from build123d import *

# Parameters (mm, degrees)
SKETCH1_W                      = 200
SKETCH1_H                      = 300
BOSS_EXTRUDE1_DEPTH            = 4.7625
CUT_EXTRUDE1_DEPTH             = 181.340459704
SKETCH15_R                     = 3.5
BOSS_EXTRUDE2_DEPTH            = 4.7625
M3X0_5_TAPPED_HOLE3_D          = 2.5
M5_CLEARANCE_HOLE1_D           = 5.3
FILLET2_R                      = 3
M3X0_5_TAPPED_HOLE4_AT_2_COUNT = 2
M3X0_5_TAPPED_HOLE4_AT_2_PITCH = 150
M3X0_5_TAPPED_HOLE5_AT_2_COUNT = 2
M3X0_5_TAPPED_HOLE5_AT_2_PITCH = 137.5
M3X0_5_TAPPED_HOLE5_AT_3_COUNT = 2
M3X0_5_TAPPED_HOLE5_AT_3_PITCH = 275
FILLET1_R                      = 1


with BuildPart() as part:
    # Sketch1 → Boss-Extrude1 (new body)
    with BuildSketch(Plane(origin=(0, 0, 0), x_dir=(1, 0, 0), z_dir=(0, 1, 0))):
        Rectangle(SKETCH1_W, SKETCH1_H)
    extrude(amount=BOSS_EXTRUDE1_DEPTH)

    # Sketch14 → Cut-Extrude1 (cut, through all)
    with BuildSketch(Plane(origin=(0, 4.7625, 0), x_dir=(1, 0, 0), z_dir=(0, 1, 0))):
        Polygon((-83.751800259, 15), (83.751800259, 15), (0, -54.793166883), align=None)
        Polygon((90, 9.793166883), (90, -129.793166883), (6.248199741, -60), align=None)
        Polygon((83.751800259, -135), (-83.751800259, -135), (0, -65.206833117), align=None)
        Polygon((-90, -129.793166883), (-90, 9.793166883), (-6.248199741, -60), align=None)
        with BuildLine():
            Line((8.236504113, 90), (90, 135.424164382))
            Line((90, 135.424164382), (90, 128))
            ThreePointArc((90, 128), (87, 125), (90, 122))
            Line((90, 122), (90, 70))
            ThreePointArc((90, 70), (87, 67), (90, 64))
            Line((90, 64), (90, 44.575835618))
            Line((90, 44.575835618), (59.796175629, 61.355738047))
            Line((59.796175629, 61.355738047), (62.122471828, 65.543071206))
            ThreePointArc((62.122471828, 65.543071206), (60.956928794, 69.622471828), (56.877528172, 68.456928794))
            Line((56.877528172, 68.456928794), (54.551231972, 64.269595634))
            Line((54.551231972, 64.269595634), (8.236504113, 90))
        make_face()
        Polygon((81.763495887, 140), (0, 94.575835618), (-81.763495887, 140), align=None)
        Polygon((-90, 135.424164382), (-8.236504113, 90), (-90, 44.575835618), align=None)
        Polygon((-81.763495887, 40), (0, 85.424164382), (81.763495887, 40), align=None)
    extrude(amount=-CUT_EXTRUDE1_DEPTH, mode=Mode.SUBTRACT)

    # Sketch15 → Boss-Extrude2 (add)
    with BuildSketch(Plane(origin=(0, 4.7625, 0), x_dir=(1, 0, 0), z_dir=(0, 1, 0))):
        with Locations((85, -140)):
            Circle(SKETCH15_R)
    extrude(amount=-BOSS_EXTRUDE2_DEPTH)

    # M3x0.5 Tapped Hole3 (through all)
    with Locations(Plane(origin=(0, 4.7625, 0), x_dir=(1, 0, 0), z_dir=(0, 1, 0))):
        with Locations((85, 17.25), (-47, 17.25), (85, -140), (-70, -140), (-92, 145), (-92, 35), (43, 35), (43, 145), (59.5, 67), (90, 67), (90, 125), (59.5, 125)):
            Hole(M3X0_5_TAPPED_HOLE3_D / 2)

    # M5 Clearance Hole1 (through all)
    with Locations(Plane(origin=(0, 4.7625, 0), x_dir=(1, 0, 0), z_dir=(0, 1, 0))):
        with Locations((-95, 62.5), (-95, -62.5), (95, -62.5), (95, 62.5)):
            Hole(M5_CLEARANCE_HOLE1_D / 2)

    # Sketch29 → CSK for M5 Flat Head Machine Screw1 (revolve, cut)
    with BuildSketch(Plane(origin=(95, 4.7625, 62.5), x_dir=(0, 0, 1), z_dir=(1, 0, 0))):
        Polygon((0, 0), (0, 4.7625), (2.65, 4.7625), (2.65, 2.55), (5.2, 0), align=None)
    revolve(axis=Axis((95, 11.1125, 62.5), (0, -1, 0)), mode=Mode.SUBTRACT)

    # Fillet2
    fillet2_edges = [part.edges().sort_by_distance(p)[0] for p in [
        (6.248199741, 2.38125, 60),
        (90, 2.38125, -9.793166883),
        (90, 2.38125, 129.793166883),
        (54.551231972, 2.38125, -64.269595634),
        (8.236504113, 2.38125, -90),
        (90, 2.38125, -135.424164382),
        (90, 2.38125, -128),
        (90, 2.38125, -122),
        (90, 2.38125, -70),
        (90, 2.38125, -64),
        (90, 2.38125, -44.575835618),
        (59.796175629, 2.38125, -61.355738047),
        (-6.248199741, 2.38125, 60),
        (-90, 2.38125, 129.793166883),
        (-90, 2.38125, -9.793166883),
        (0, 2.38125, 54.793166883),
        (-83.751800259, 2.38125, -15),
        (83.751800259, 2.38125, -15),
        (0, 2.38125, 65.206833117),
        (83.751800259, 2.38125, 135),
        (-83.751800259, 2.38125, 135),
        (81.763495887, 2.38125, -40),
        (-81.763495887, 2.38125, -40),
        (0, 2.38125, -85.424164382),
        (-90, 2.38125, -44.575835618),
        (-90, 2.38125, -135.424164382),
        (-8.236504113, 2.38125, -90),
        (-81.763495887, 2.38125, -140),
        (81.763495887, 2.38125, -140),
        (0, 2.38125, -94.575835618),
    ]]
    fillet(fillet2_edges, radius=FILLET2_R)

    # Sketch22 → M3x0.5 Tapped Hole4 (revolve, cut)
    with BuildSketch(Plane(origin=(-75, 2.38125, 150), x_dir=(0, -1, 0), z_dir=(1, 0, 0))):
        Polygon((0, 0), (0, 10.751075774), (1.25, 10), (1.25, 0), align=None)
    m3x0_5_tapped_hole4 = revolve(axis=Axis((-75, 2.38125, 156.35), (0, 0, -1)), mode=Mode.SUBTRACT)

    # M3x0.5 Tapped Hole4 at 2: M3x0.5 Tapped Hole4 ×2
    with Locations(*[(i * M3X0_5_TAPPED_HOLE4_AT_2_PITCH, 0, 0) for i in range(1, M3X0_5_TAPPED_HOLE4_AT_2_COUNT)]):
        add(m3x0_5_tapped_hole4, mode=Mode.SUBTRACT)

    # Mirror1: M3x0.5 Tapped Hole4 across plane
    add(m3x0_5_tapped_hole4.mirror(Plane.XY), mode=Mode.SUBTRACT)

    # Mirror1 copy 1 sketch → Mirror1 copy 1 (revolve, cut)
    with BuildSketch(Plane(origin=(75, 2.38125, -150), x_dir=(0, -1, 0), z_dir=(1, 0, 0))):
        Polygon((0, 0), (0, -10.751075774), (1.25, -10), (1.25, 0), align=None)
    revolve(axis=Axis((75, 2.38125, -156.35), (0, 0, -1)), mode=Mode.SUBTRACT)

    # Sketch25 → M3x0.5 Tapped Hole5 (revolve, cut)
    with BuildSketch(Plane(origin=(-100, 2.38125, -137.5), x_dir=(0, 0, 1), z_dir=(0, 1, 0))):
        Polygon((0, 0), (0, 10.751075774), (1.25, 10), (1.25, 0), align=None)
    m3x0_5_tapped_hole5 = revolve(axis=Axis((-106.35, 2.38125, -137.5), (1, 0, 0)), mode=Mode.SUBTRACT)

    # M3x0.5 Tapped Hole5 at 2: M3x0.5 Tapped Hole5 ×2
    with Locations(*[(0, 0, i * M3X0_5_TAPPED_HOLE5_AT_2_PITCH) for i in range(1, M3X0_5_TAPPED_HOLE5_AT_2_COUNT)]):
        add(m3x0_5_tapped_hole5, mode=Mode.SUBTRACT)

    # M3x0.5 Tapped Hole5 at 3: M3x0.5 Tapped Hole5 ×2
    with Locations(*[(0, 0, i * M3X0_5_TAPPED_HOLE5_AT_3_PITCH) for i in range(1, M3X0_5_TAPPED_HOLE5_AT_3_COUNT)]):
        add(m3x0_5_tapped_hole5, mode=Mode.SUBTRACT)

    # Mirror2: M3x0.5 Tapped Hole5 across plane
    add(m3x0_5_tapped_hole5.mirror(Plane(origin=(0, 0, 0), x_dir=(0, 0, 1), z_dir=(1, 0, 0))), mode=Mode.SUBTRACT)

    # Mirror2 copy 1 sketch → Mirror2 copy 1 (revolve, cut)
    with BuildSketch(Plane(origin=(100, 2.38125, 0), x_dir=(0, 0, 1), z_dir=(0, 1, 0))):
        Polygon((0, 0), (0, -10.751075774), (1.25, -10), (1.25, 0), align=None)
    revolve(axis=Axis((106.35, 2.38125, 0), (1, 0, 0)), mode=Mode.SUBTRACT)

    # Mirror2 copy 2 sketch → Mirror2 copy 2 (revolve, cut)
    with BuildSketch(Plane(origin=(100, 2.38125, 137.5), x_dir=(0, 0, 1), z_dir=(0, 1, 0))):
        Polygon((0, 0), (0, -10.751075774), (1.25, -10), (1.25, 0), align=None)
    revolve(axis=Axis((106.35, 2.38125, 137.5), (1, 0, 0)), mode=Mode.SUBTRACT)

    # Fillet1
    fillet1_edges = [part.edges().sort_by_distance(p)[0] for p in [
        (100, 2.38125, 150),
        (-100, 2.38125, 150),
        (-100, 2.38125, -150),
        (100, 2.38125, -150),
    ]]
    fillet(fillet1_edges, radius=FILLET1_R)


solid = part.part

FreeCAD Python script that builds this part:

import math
import FreeCAD as App
import Part
import Sketcher
from FreeCAD import Vector
Q = App.Units.Quantity


def edges_at(feature, points):
    """Names of the edges that pass closest to the given points."""
    edges = feature.Shape.Edges
    near = lambda p: min(range(len(edges)), key=lambda i: edges[i].distToShape(Part.Vertex(*p))[0])
    return sorted({f"Edge{near(p) + 1}" for p in points})


def add_polygon(sketch, points):
    """Adds a closed chain of lines whose ends are joined by coincident constraints."""
    first, n = sketch.GeometryCount, len(points)
    for a, b in zip(points, points[1:] + points[:1]):
        sketch.addGeometry(Part.LineSegment(App.Vector(*a, 0), App.Vector(*b, 0)), False)
    for i in range(n):
        sketch.addConstraint(Sketcher.Constraint("Coincident", first + i, 2, first + (i + 1) % n, 1))

doc = App.newDocument("Part")
body = doc.addObject("PartDesign::Body", "Body")

sketch1 = doc.addObject("Sketcher::SketchObject", "Sketch")
body.addObject(sketch1)
sketch1.AttachmentSupport = (doc.XZ_Plane, [""])
sketch1.MapMode = "FlatFace"
add_polygon(sketch1, [(-100, -150), (-100, 150), (100, 150), (100, -150)])
sketch1.addConstraint([
    Sketcher.Constraint("Vertical", 0),
    Sketcher.Constraint("Horizontal", 1),
    Sketcher.Constraint("Vertical", 2),
    Sketcher.Constraint("Horizontal", 3),
    Sketcher.Constraint("Symmetric", 0, 2, 2, 2, -1, 1),
    Sketcher.Constraint("DistanceX", 1, 1, 1, 2, Q("200 mm")),
    Sketcher.Constraint("DistanceY", 0, 1, 0, 2, Q("300 mm")),
])
pad1 = doc.addObject("PartDesign::Pad", "Pad")
body.addObject(pad1)
pad1.Profile = sketch1
pad1.Length = 4.7625
pad1.Reversed = True

sketch2 = doc.addObject("Sketcher::SketchObject", "Sketch001")
body.addObject(sketch2)
sketch2.AttachmentSupport = (doc.XZ_Plane, [""])
sketch2.MapMode = "FlatFace"
sketch2.AttachmentOffset = App.Placement(Vector(0, 0, -4.7625), App.Rotation())
add_polygon(sketch2, [(83.8, -15), (-83.8, -15), (0, 54.8)])
add_polygon(sketch2, [(90, 129.8), (90, -9.8), (6.2, 60)])
add_polygon(sketch2, [(-83.8, 135), (83.8, 135), (0, 65.2)])
add_polygon(sketch2, [(-90, -9.8), (-90, 129.8), (-6.2, 60)])
sketch2.addGeometry(Part.LineSegment(Vector(90, -135.4, 0), Vector(8.2, -90, 0)), False)
sketch2.addGeometry(Part.LineSegment(Vector(8.2, -90, 0), Vector(54.6, -64.3, 0)), False)
sketch2.addGeometry(Part.LineSegment(Vector(54.6, -64.3, 0), Vector(56.9, -68.5, 0)), False)
sketch2.addGeometry(Part.ArcOfCircle(Part.Circle(Vector(59.5, -67, 0), Vector(0, 0, 1), 3), math.radians(-151), math.radians(29)), False)
sketch2.addGeometry(Part.LineSegment(Vector(62.1, -65.5, 0), Vector(59.8, -61.4, 0)), False)
sketch2.addGeometry(Part.LineSegment(Vector(59.8, -61.4, 0), Vector(90, -44.6, 0)), False)
sketch2.addGeometry(Part.LineSegment(Vector(90, -44.6, 0), Vector(90, -64, 0)), False)
sketch2.addGeometry(Part.ArcOfCircle(Part.Circle(Vector(90, -67, 0), Vector(0, 0, 1), 3), math.radians(90), math.radians(270)), False)
sketch2.addGeometry(Part.LineSegment(Vector(90, -70, 0), Vector(90, -122, 0)), False)
sketch2.addGeometry(Part.ArcOfCircle(Part.Circle(Vector(90, -125, 0), Vector(0, 0, 1), 3), math.radians(90), math.radians(270)), False)
sketch2.addGeometry(Part.LineSegment(Vector(90, -128, 0), Vector(90, -135.4, 0)), False)
add_polygon(sketch2, [(0, -94.6), (81.8, -140), (-81.8, -140)])
add_polygon(sketch2, [(-8.2, -90), (-90, -135.4), (-90, -44.6)])
add_polygon(sketch2, [(0, -85.4), (-81.8, -40), (81.8, -40)])
sketch2.addConstraint([
    Sketcher.Constraint("Coincident", 12, 2, 13, 1),
    Sketcher.Constraint("Coincident", 13, 2, 14, 1),
    Sketcher.Constraint("Tangent", 14, 2, 15, 1),
    Sketcher.Constraint("Tangent", 15, 2, 16, 1),
    Sketcher.Constraint("Coincident", 16, 2, 17, 1),
    Sketcher.Constraint("Coincident", 17, 2, 18, 1),
    Sketcher.Constraint("Coincident", 18, 2, 19, 1),
    Sketcher.Constraint("Coincident", 19, 2, 20, 1),
    Sketcher.Constraint("Coincident", 20, 2, 21, 1),
    Sketcher.Constraint("Coincident", 21, 2, 22, 1),
    Sketcher.Constraint("Coincident", 22, 2, 12, 1),
    Sketcher.Constraint("Horizontal", 0),
    Sketcher.Constraint("Vertical", 3),
    Sketcher.Constraint("Horizontal", 6),
    Sketcher.Constraint("Vertical", 9),
    Sketcher.Constraint("Vertical", 18),
    Sketcher.Constraint("Vertical", 20),
    Sketcher.Constraint("Vertical", 22),
    Sketcher.Constraint("Horizontal", 24),
    Sketcher.Constraint("Vertical", 27),
    Sketcher.Constraint("Horizontal", 30),
    Sketcher.Constraint("Equal", 15, 19),
    Sketcher.Constraint("Equal", 19, 21),
    Sketcher.Constraint("Symmetric", 5, 2, 9, 2, -2),
    Sketcher.Constraint("Symmetric", 4, 2, 10, 2, -2),
    Sketcher.Constraint("Symmetric", 22, 2, 26, 2, -2),
    Sketcher.Constraint("Symmetric", 17, 2, 27, 2, -2),
    Sketcher.Constraint("Symmetric", 12, 2, 28, 2, -2),
    Sketcher.Constraint("PointOnObject", 1, 2, -2),
    Sketcher.Constraint("PointOnObject", 7, 2, -2),
    Sketcher.Constraint("PointOnObject", 25, 2, -2),
    Sketcher.Constraint("PointOnObject", 31, 2, -2),
    Sketcher.Constraint("Parallel", 2, 4),
    Sketcher.Constraint("Parallel", 1, 5),
    Sketcher.Constraint("Parallel", 5, 7),
    Sketcher.Constraint("Parallel", 4, 8),
    Sketcher.Constraint("Parallel", 8, 10),
    Sketcher.Constraint("Parallel", 7, 11),
    Sketcher.Constraint("Perpendicular", 13, 14),
    Sketcher.Constraint("Parallel", 14, 16),
    Sketcher.Constraint("Perpendicular", 16, 17),
    Sketcher.Constraint("Parallel", 12, 23),
    Sketcher.Constraint("Parallel", 17, 25),
    Sketcher.Constraint("Parallel", 25, 26),
    Sketcher.Constraint("Parallel", 23, 28),
    Sketcher.Constraint("Parallel", 28, 29),
    Sketcher.Constraint("Parallel", 26, 31),
    Sketcher.Constraint("Horizontal", 15, 3, 19, 3),
    Sketcher.Constraint("Vertical", 19, 3, 21, 3),
    Sketcher.Constraint("Vertical", 21, 3, 3, 2),
    Sketcher.Constraint("Vertical", 2, 2, 6, 2),
    Sketcher.Constraint("Vertical", 5, 2, 17, 2),
    Sketcher.Constraint("Vertical", 18, 2, 19, 2),
    Sketcher.Constraint("Vertical", 24, 2, 29, 2),
    Sketcher.Constraint("Equal", 2, 4),
    Sketcher.Constraint("Equal", 12, 23),
    Sketcher.Constraint("Radius", 15, Q("3 mm")),
    Sketcher.Constraint("DistanceY", 20, 2, 20, 1, Q("52 mm")),
    Sketcher.Constraint("DistanceY", 15, 3, -1, 1, Q("67 mm")),
    Sketcher.Constraint("DistanceX", -1, 1, 19, 3, Q("90 mm")),
    Sketcher.Constraint("DistanceY", 0, 2, -1, 1, Q("15 mm")),
    Sketcher.Constraint("DistanceY", -1, 1, 4, 2, Q("60 mm")),
    Sketcher.Constraint("DistanceY", -1, 1, 6, 2, Q("135 mm")),
    Sketcher.Constraint("DistanceY", 12, 2, -1, 1, Q("90 mm")),
    Sketcher.Constraint("DistanceY", 23, 2, -1, 1, Q("140 mm")),
    Sketcher.Constraint("DistanceY", 29, 2, -1, 1, Q("40 mm")),
    Sketcher.Constraint("DistanceX", -1, 1, 15, 3, Q("59.5 mm")),
    Sketcher.Constraint("DistanceX", 0, 2, 0, 1, Q("167.503601 mm")),
    Sketcher.Constraint("DistanceX", 24, 2, 24, 1, Q("163.526992 mm")),
    Sketcher.Constraint("DistanceY", 27, 1, 27, 2, Q("90.848329 mm")),
    Sketcher.Constraint("Distance", 1, Q("109.020412 mm")),
])
pocket1 = doc.addObject("PartDesign::Pocket", "Pocket")
body.addObject(pocket1)
pocket1.Profile = sketch2
pocket1.Type = "ThroughAll"
pocket1.Reversed = True

sketch3 = doc.addObject("Sketcher::SketchObject", "Sketch002")
body.addObject(sketch3)
sketch3.AttachmentSupport = (doc.XZ_Plane, [""])
sketch3.MapMode = "FlatFace"
sketch3.AttachmentOffset = App.Placement(Vector(0, 0, -4.7625), App.Rotation())
sketch3.addGeometry(Part.Circle(Vector(85, 140, 0), Vector(0, 0, 1), 3.5), False)
sketch3.addConstraint([
    Sketcher.Constraint("Diameter", 0, Q("7 mm")),
    Sketcher.Constraint("DistanceX", -1, 1, 0, 3, Q("85 mm")),
    Sketcher.Constraint("DistanceY", -1, 1, 0, 3, Q("140 mm")),
])
pad2 = doc.addObject("PartDesign::Pad", "Pad001")
body.addObject(pad2)
pad2.Profile = sketch3
pad2.Length = 4.7625

sketch4 = doc.addObject("Sketcher::SketchObject", "Sketch003")
body.addObject(sketch4)
sketch4.AttachmentSupport = (doc.XZ_Plane, [""])
sketch4.MapMode = "FlatFace"
sketch4.AttachmentOffset = App.Placement(Vector(0, 0, -4.7625), App.Rotation())
sketch4.addGeometry([
    Part.Circle(Vector(85, -17.2, 0), Vector(0, 0, 1), 1.2),
    Part.Circle(Vector(-47, -17.2, 0), Vector(0, 0, 1), 1.2),
    Part.Circle(Vector(85, 140, 0), Vector(0, 0, 1), 1.2),
    Part.Circle(Vector(-70, 140, 0), Vector(0, 0, 1), 1.2),
    Part.Circle(Vector(-92, -145, 0), Vector(0, 0, 1), 1.2),
    Part.Circle(Vector(-92, -35, 0), Vector(0, 0, 1), 1.2),
    Part.Circle(Vector(43, -35, 0), Vector(0, 0, 1), 1.2),
    Part.Circle(Vector(43, -145, 0), Vector(0, 0, 1), 1.2),
    Part.Circle(Vector(59.5, -67, 0), Vector(0, 0, 1), 1.2),
    Part.Circle(Vector(90, -67, 0), Vector(0, 0, 1), 1.2),
    Part.Circle(Vector(90, -125, 0), Vector(0, 0, 1), 1.2),
    Part.Circle(Vector(59.5, -125, 0), Vector(0, 0, 1), 1.2),
], False)
sketch4.addConstraint([
    Sketcher.Constraint("Equal", 0, 1),
    Sketcher.Constraint("Equal", 1, 2),
    Sketcher.Constraint("Equal", 2, 3),
    Sketcher.Constraint("Equal", 3, 4),
    Sketcher.Constraint("Equal", 4, 5),
    Sketcher.Constraint("Equal", 5, 6),
    Sketcher.Constraint("Equal", 6, 7),
    Sketcher.Constraint("Equal", 7, 8),
    Sketcher.Constraint("Equal", 8, 9),
    Sketcher.Constraint("Equal", 9, 10),
    Sketcher.Constraint("Equal", 10, 11),
    Sketcher.Constraint("Horizontal", 0, 3, 1, 3),
    Sketcher.Constraint("Horizontal", 2, 3, 3, 3),
    Sketcher.Constraint("Horizontal", 5, 3, 6, 3),
    Sketcher.Constraint("Horizontal", 4, 3, 7, 3),
    Sketcher.Constraint("Horizontal", 8, 3, 9, 3),
    Sketcher.Constraint("Horizontal", 10, 3, 11, 3),
    Sketcher.Constraint("Vertical", 0, 3, 2, 3),
    Sketcher.Constraint("Vertical", 4, 3, 5, 3),
    Sketcher.Constraint("Vertical", 6, 3, 7, 3),
    Sketcher.Constraint("Vertical", 9, 3, 10, 3),
    Sketcher.Constraint("Vertical", 8, 3, 11, 3),
    Sketcher.Constraint("Diameter", 0, Q("2.5 mm")),
    Sketcher.Constraint("DistanceX", -1, 1, 0, 3, Q("85 mm")),
    Sketcher.Constraint("DistanceX", 1, 3, -1, 1, Q("47 mm")),
    Sketcher.Constraint("DistanceY", -1, 1, 2, 3, Q("140 mm")),
    Sketcher.Constraint("DistanceX", 3, 3, -1, 1, Q("70 mm")),
    Sketcher.Constraint("DistanceX", 4, 3, -1, 1, Q("92 mm")),
    Sketcher.Constraint("DistanceY", 4, 3, -1, 1, Q("145 mm")),
    Sketcher.Constraint("DistanceY", 5, 3, -1, 1, Q("35 mm")),
    Sketcher.Constraint("DistanceX", -1, 1, 6, 3, Q("43 mm")),
    Sketcher.Constraint("DistanceY", 8, 3, -1, 1, Q("67 mm")),
    Sketcher.Constraint("DistanceX", -1, 1, 9, 3, Q("90 mm")),
    Sketcher.Constraint("DistanceY", 10, 3, -1, 1, Q("125 mm")),
    Sketcher.Constraint("DistanceX", -1, 1, 8, 3, Q("59.5 mm")),
    Sketcher.Constraint("DistanceY", 0, 3, -1, 1, Q("17.25 mm")),
])
doc.recompute()
hole = doc.addObject("PartDesign::Hole", "Hole")
body.addObject(hole)
hole.Profile = sketch4
hole.ThreadType = "None"
hole.Diameter = 2.5
hole.DepthType = "ThroughAll"
hole.Reversed = True

sketch5 = doc.addObject("Sketcher::SketchObject", "Sketch004")
body.addObject(sketch5)
sketch5.AttachmentSupport = (doc.XZ_Plane, [""])
sketch5.MapMode = "FlatFace"
sketch5.AttachmentOffset = App.Placement(Vector(0, 0, -4.7625), App.Rotation())
sketch5.addGeometry([
    Part.Circle(Vector(-95, -62.5, 0), Vector(0, 0, 1), 2.6),
    Part.Circle(Vector(-95, 62.5, 0), Vector(0, 0, 1), 2.6),
    Part.Circle(Vector(95, 62.5, 0), Vector(0, 0, 1), 2.6),
    Part.Circle(Vector(95, -62.5, 0), Vector(0, 0, 1), 2.6),
], False)
sketch5.addConstraint([
    Sketcher.Constraint("Equal", 0, 1),
    Sketcher.Constraint("Equal", 1, 2),
    Sketcher.Constraint("Equal", 2, 3),
    Sketcher.Constraint("Symmetric", 0, 3, 2, 3, -1, 1),
    Sketcher.Constraint("Symmetric", 1, 3, 3, 3, -1, 1),
    Sketcher.Constraint("Symmetric", 1, 3, 2, 3, -2),
    Sketcher.Constraint("Diameter", 0, Q("5.3 mm")),
    Sketcher.Constraint("DistanceX", 0, 3, -1, 1, Q("95 mm")),
    Sketcher.Constraint("DistanceY", 0, 3, 1, 3, Q("125 mm")),
])
doc.recompute()
hole2 = doc.addObject("PartDesign::Hole", "Hole001")
body.addObject(hole2)
hole2.Profile = sketch5
hole2.ThreadType = "None"
hole2.Diameter = 5.3
hole2.DepthType = "ThroughAll"
hole2.Reversed = True

sketch6 = doc.addObject("Sketcher::SketchObject", "Sketch005")
body.addObject(sketch6)
sketch6.AttachmentSupport = (doc.YZ_Plane, [""])
sketch6.MapMode = "FlatFace"
sketch6.AttachmentOffset = App.Placement(Vector(0, 0, 95), App.Rotation())
add_polygon(sketch6, [(0, 62.5), (4.8, 62.5), (4.8, 67.7), (2.2, 65.2), (0, 65.2)])
sketch6.addGeometry(Part.LineSegment(Vector(4.8, 62.5, 0), Vector(0, 62.5, 0)), True)
sketch6.addConstraint([
    Sketcher.Constraint("Horizontal", 0),
    Sketcher.Constraint("Vertical", 1),
    Sketcher.Constraint("Horizontal", 3),
    Sketcher.Constraint("Vertical", 4),
    Sketcher.Constraint("Horizontal", 5),
    Sketcher.Constraint("Coincident", 5, 1, 0, 2),
    Sketcher.Constraint("PointOnObject", 3, 2, -2),
    Sketcher.Constraint("PointOnObject", 5, 2, -2),
    Sketcher.Constraint("Angle", 2, Q("-135 deg")),
    Sketcher.Constraint("DistanceY", 1, 1, 1, 2, Q("5.2 mm")),
    Sketcher.Constraint("DistanceY", 4, 2, 4, 1, Q("2.65 mm")),
    Sketcher.Constraint("DistanceY", -1, 1, 0, 2, Q("62.5 mm")),
    Sketcher.Constraint("DistanceX", 0, 1, 0, 2, Q("4.7625 mm")),
])
groove = doc.addObject("PartDesign::Groove", "Groove")
body.addObject(groove)
groove.Profile = sketch6
groove.ReferenceAxis = (sketch6, ["Axis0"])
groove.Angle = 360
doc.recompute()

fillet = doc.addObject("PartDesign::Fillet", "Fillet")
body.addObject(fillet)
fillet.Base = (groove, edges_at(groove, [
    (6.248, 2.381, 60),
    (90, 2.381, -9.793),
    (90, 2.381, 129.793),
    (54.551, 2.381, -64.27),
    (8.237, 2.381, -90),
    (90, 2.381, -135.424),
    (90, 2.381, -128),
    (90, 2.381, -122),
    (90, 2.381, -70),
    (90, 2.381, -64),
    (90, 2.381, -44.576),
    (59.796, 2.381, -61.356),
    (-6.248, 2.381, 60),
    (-90, 2.381, 129.793),
    (-90, 2.381, -9.793),
    (0, 2.381, 54.793),
    (-83.752, 2.381, -15),
    (83.752, 2.381, -15),
    (0, 2.381, 65.207),
    (83.752, 2.381, 135),
    (-83.752, 2.381, 135),
    (81.763, 2.381, -40),
    (-81.763, 2.381, -40),
    (0, 2.381, -85.424),
    (-90, 2.381, -44.576),
    (-90, 2.381, -135.424),
    (-8.237, 2.381, -90),
    (-81.763, 2.381, -140),
    (81.763, 2.381, -140),
    (0, 2.381, -94.576),
]))
fillet.Radius = 3

sketch7 = doc.addObject("Sketcher::SketchObject", "Sketch006")
body.addObject(sketch7)
sketch7.AttachmentSupport = (doc.YZ_Plane, [""])
sketch7.MapMode = "FlatFace"
sketch7.AttachmentOffset = App.Placement(Vector(0, 0, -75), App.Rotation())
add_polygon(sketch7, [(2.4, 139.2), (2.4, 150), (1.1, 150), (1.1, 140)])
sketch7.addGeometry(Part.LineSegment(Vector(2.4, 150, 0), Vector(2.4, 139.2, 0)), True)
sketch7.addConstraint([
    Sketcher.Constraint("Vertical", 0),
    Sketcher.Constraint("Horizontal", 1),
    Sketcher.Constraint("Vertical", 2),
    Sketcher.Constraint("Vertical", 4),
    Sketcher.Constraint("Coincident", 4, 1, 0, 2),
    Sketcher.Constraint("Equal", 0, 4),
    Sketcher.Constraint("DistanceY", 2, 2, 2, 1, Q("10 mm")),
    Sketcher.Constraint("Angle", 3, Q("-31 deg")),
    Sketcher.Constraint("DistanceY", -1, 1, 0, 2, Q("150 mm")),
    Sketcher.Constraint("DistanceX", 1, 2, 1, 1, Q("1.25 mm")),
    Sketcher.Constraint("DistanceX", -1, 1, 0, 2, Q("2.38125 mm")),
])
groove2 = doc.addObject("PartDesign::Groove", "Groove001")
body.addObject(groove2)
groove2.Profile = sketch7
groove2.ReferenceAxis = (sketch7, ["Axis0"])
groove2.Angle = 360
doc.recompute()

linearpattern = doc.addObject("PartDesign::LinearPattern", "LinearPattern")
body.addObject(linearpattern)
linearpattern.Originals = [groove2]
linearpattern.Direction = (doc.X_Axis, [""])
linearpattern.Mode = "offset"
linearpattern.Offset = 150
linearpattern.Occurrences = 2
body.Tip = linearpattern
doc.recompute()

mirrored = doc.addObject("PartDesign::Mirrored", "Mirrored")
body.addObject(mirrored)
mirrored.Originals = [groove2]
mirrored.MirrorPlane = (doc.XY_Plane, [""])
body.Tip = mirrored

sketch8 = doc.addObject("Sketcher::SketchObject", "Sketch007")
body.addObject(sketch8)
sketch8.AttachmentSupport = (doc.YZ_Plane, [""])
sketch8.MapMode = "FlatFace"
sketch8.AttachmentOffset = App.Placement(Vector(0, 0, 75), App.Rotation())
add_polygon(sketch8, [(2.4, -150), (2.4, -139.2), (1.1, -140), (1.1, -150)])
sketch8.addGeometry(Part.LineSegment(Vector(2.4, -139.2, 0), Vector(2.4, -150, 0)), True)
sketch8.addConstraint([
    Sketcher.Constraint("Vertical", 0),
    Sketcher.Constraint("Vertical", 2),
    Sketcher.Constraint("Horizontal", 3),
    Sketcher.Constraint("Vertical", 4),
    Sketcher.Constraint("Coincident", 4, 1, 0, 2),
    Sketcher.Constraint("Horizontal", 2, 2, 4, 2),
    Sketcher.Constraint("DistanceY", 2, 2, 2, 1, Q("10 mm")),
    Sketcher.Constraint("Angle", 1, Q("-149 deg")),
    Sketcher.Constraint("DistanceY", 1, 2, -1, 1, Q("140 mm")),
    Sketcher.Constraint("DistanceX", 3, 1, 3, 2, Q("1.25 mm")),
    Sketcher.Constraint("DistanceX", -1, 1, 0, 2, Q("2.38125 mm")),
])
groove3 = doc.addObject("PartDesign::Groove", "Groove002")
body.addObject(groove3)
groove3.Profile = sketch8
groove3.ReferenceAxis = (sketch8, ["Axis0"])
groove3.Angle = 360

sketch9 = doc.addObject("Sketcher::SketchObject", "Sketch008")
body.addObject(sketch9)
sketch9.AttachmentSupport = (doc.XZ_Plane, [""])
sketch9.MapMode = "FlatFace"
sketch9.AttachmentOffset = App.Placement(Vector(0, 0, -2.38125), App.Rotation())
add_polygon(sketch9, [(-89.2, -137.5), (-100, -137.5), (-100, -136.2), (-90, -136.2)])
sketch9.addGeometry(Part.LineSegment(Vector(-100, -137.5, 0), Vector(-89.2, -137.5, 0)), True)
sketch9.addConstraint([
    Sketcher.Constraint("Horizontal", 0),
    Sketcher.Constraint("Vertical", 1),
    Sketcher.Constraint("Horizontal", 2),
    Sketcher.Constraint("Horizontal", 4),
    Sketcher.Constraint("Coincident", 4, 1, 0, 2),
    Sketcher.Constraint("Equal", 0, 4),
    Sketcher.Constraint("DistanceX", 2, 1, 2, 2, Q("10 mm")),
    Sketcher.Constraint("Angle", 3, Q("-59 deg")),
    Sketcher.Constraint("DistanceX", 0, 2, -1, 1, Q("100 mm")),
    Sketcher.Constraint("DistanceY", 1, 1, 1, 2, Q("1.25 mm")),
    Sketcher.Constraint("DistanceY", 0, 2, -1, 1, Q("137.5 mm")),
])
groove4 = doc.addObject("PartDesign::Groove", "Groove003")
body.addObject(groove4)
groove4.Profile = sketch9
groove4.ReferenceAxis = (sketch9, ["Axis0"])
groove4.Angle = 360
doc.recompute()

linearpattern2 = doc.addObject("PartDesign::LinearPattern", "LinearPattern001")
body.addObject(linearpattern2)
linearpattern2.Originals = [groove4]
linearpattern2.Direction = (doc.Z_Axis, [""])
linearpattern2.Mode = "offset"
linearpattern2.Offset = 137.5
linearpattern2.Occurrences = 2
body.Tip = linearpattern2
doc.recompute()

linearpattern3 = doc.addObject("PartDesign::LinearPattern", "LinearPattern002")
body.addObject(linearpattern3)
linearpattern3.Originals = [groove4]
linearpattern3.Direction = (doc.Z_Axis, [""])
linearpattern3.Mode = "offset"
linearpattern3.Offset = 275
linearpattern3.Occurrences = 2
body.Tip = linearpattern3
doc.recompute()

mirrored2 = doc.addObject("PartDesign::Mirrored", "Mirrored001")
body.addObject(mirrored2)
mirrored2.Originals = [groove4]
mirrored2.MirrorPlane = (doc.YZ_Plane, [""])
body.Tip = mirrored2

sketch10 = doc.addObject("Sketcher::SketchObject", "Sketch009")
body.addObject(sketch10)
sketch10.AttachmentSupport = (doc.XZ_Plane, [""])
sketch10.MapMode = "FlatFace"
sketch10.AttachmentOffset = App.Placement(Vector(0, 0, -2.38125), App.Rotation())
add_polygon(sketch10, [(100, 0), (89.2, 0), (90, 1.2), (100, 1.2)])
sketch10.addConstraint([
    Sketcher.Constraint("Horizontal", 0),
    Sketcher.Constraint("Horizontal", 2),
    Sketcher.Constraint("Vertical", 3),
    Sketcher.Constraint("PointOnObject", 0, 2, -1),
    Sketcher.Constraint("DistanceX", 2, 1, 2, 2, Q("10 mm")),
    Sketcher.Constraint("Angle", 1, Q("59 deg")),
    Sketcher.Constraint("DistanceX", -1, 1, 1, 2, Q("90 mm")),
    Sketcher.Constraint("DistanceY", 3, 2, 3, 1, Q("1.25 mm")),
])
groove5 = doc.addObject("PartDesign::Groove", "Groove004")
body.addObject(groove5)
groove5.Profile = sketch10
groove5.ReferenceAxis = (sketch10, ["H_Axis"])
groove5.Angle = 360

sketch11 = doc.addObject("Sketcher::SketchObject", "Sketch010")
body.addObject(sketch11)
sketch11.AttachmentSupport = (doc.XZ_Plane, [""])
sketch11.MapMode = "FlatFace"
sketch11.AttachmentOffset = App.Placement(Vector(0, 0, -2.38125), App.Rotation())
add_polygon(sketch11, [(100, 137.5), (89.2, 137.5), (90, 138.8), (100, 138.8)])
sketch11.addGeometry(Part.LineSegment(Vector(89.2, 137.5, 0), Vector(100, 137.5, 0)), True)
sketch11.addConstraint([
    Sketcher.Constraint("Horizontal", 0),
    Sketcher.Constraint("Horizontal", 2),
    Sketcher.Constraint("Vertical", 3),
    Sketcher.Constraint("Horizontal", 4),
    Sketcher.Constraint("Coincident", 4, 1, 0, 2),
    Sketcher.Constraint("Vertical", 2, 2, 4, 2),
    Sketcher.Constraint("DistanceX", 2, 1, 2, 2, Q("10 mm")),
    Sketcher.Constraint("Angle", 1, Q("59 deg")),
    Sketcher.Constraint("DistanceX", -1, 1, 1, 2, Q("90 mm")),
    Sketcher.Constraint("DistanceY", 3, 2, 3, 1, Q("1.25 mm")),
    Sketcher.Constraint("DistanceY", -1, 1, 0, 2, Q("137.5 mm")),
])
groove6 = doc.addObject("PartDesign::Groove", "Groove005")
body.addObject(groove6)
groove6.Profile = sketch11
groove6.ReferenceAxis = (sketch11, ["Axis0"])
groove6.Angle = 360
doc.recompute()

fillet2 = doc.addObject("PartDesign::Fillet", "Fillet001")
body.addObject(fillet2)
fillet2.Base = (groove6, edges_at(groove6, [
    (100, 2.381, 150),
    (-100, 2.381, 150),
    (-100, 2.381, -150),
    (100, 2.381, -150),
]))
fillet2.Radius = 1

doc.recompute()
